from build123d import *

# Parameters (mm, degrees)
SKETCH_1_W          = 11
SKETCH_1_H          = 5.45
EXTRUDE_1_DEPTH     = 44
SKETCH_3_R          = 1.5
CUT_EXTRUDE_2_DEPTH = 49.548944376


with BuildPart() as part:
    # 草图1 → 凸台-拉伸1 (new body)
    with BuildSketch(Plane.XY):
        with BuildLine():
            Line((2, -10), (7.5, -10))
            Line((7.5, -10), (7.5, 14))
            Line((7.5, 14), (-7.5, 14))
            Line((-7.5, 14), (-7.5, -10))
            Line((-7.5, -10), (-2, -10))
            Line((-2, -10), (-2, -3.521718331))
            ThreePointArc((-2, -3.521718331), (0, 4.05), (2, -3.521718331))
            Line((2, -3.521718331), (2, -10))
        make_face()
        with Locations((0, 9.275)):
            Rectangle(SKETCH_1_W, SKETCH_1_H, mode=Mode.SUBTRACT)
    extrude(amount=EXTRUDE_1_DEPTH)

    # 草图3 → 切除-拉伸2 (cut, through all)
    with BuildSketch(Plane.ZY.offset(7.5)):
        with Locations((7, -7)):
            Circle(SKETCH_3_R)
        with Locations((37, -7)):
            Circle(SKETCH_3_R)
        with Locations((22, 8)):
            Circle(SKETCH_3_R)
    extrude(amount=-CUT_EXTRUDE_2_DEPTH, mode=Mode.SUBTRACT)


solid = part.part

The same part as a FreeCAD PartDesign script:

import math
import FreeCAD as App
import Part
import Sketcher
from FreeCAD import Vector

doc = App.newDocument("Part")
params = doc.addObject("Spreadsheet::Sheet", "Params")
for row, (alias, value) in enumerate([
    ("sketch1_width", "15 mm"),
    ("sketch1_width2", "11 mm"),
    ("sketch1_height", "24 mm"),
    ("sketch1_radius", "4.05 mm"),
    ("sketch1_width3", "5.5 mm"),
    ("pad1_length", "44 mm"),
    ("sketch2_diameter", "3 mm"),
], start=1):
    params.set(f"A{row}", alias)
    params.set(f"B{row}", "=" + value)
    params.setAlias(f"B{row}", alias)

body = doc.addObject("PartDesign::Body", "Body")

# Sketch on XY plane
sketch1 = body.newObject("Sketcher::SketchObject", "Sketch")
sketch1.AttachmentSupport = (doc.getObject("XY_Plane"), [""])
sketch1.MapMode = "FlatFace"
sketch1.addGeometry([
    Part.LineSegment(Vector(2, -10, 0), Vector(7.5, -10, 0)),  # 0
    Part.LineSegment(Vector(7.5, -10, 0), Vector(7.5, 14, 0)),  # 1
    Part.LineSegment(Vector(7.5, 14, 0), Vector(-7.5, 14, 0)),  # 2
    Part.LineSegment(Vector(-7.5, 14, 0), Vector(-7.5, -10, 0)),  # 3
    Part.LineSegment(Vector(-7.5, -10, 0), Vector(-2, -10, 0)),  # 4
    Part.LineSegment(Vector(-2, -10, 0), Vector(-2, -3.5, 0)),  # 5
    Part.ArcOfCircle(Part.Circle(Vector(0, 0, 0), Vector(0, 0, 1), 4), math.radians(-60), math.radians(240)),  # 6
    Part.LineSegment(Vector(2, -3.5, 0), Vector(2, -10, 0)),  # 7
    Part.LineSegment(Vector(5.5, 6.5, 0), Vector(-5.5, 6.5, 0)),  # 8
    Part.LineSegment(Vector(-5.5, 6.5, 0), Vector(-5.5, 12, 0)),  # 9
    Part.LineSegment(Vector(-5.5, 12, 0), Vector(5.5, 12, 0)),  # 10
    Part.LineSegment(Vector(5.5, 12, 0), Vector(5.5, 6.5, 0)),  # 11
], False)
sketch1.addConstraint([
    Sketcher.Constraint("Coincident", 0, 2, 1, 1),
    Sketcher.Constraint("Coincident", 1, 2, 2, 1),
    Sketcher.Constraint("Coincident", 2, 2, 3, 1),
    Sketcher.Constraint("Coincident", 3, 2, 4, 1),
    Sketcher.Constraint("Coincident", 4, 2, 5, 1),
    Sketcher.Constraint("Coincident", 5, 2, 6, 2),
    Sketcher.Constraint("Coincident", 6, 1, 7, 1),
    Sketcher.Constraint("Coincident", 7, 2, 0, 1),
    Sketcher.Constraint("Coincident", 8, 2, 9, 1),
    Sketcher.Constraint("Coincident", 9, 2, 10, 1),
    Sketcher.Constraint("Coincident", 10, 2, 11, 1),
    Sketcher.Constraint("Coincident", 11, 2, 8, 1),
    Sketcher.Constraint("Horizontal", 0),
    Sketcher.Constraint("Vertical", 1),
    Sketcher.Constraint("Horizontal", 2),
    Sketcher.Constraint("Vertical", 3),
    Sketcher.Constraint("Horizontal", 4),
    Sketcher.Constraint("Vertical", 5),
    Sketcher.Constraint("Vertical", 7),
    Sketcher.Constraint("Horizontal", 8),
    Sketcher.Constraint("Vertical", 9),
    Sketcher.Constraint("Horizontal", 10),
    Sketcher.Constraint("Vertical", 11),
    Sketcher.Constraint("Coincident", 6, 3, -1, 1),
    Sketcher.Constraint("Symmetric", 0, 2, 3, 2, -2),
    Sketcher.Constraint("Horizontal", 5, 2, 6, 1),
    Sketcher.Constraint("DistanceX", 2, 2, 2, 1, 15.0),
    Sketcher.Constraint("DistanceX", 8, 2, 8, 1, 11.0),
    Sketcher.Constraint("DistanceY", 1, 1, 1, 2, 24.0),
    Sketcher.Constraint("Radius", 6, 4.05),
    Sketcher.Constraint("DistanceX", 0, 1, 0, 2, 5.5),
    Sketcher.Constraint("DistanceY", 0, 2, -1, 1, 10.0),
    Sketcher.Constraint("DistanceY", -1, 1, 9, 2, 12.0),
    Sketcher.Constraint("DistanceX", 2, 2, 8, 2, 2.0),
    Sketcher.Constraint("DistanceY", 9, 1, 9, 2, 5.45),
])
sketch1.setExpression("Constraints[26]", "Params.sketch1_width")
sketch1.setExpression("Constraints[27]", "Params.sketch1_width2")
sketch1.setExpression("Constraints[28]", "Params.sketch1_height")
sketch1.setExpression("Constraints[29]", "Params.sketch1_radius")
sketch1.setExpression("Constraints[30]", "Params.sketch1_width3")
pad1 = body.newObject("PartDesign::Pad", "Pad")
pad1.Profile = sketch1
pad1.setExpression("Length", "Params.pad1_length")

# Sketch on YZ plane
sketch2 = body.newObject("Sketcher::SketchObject", "Sketch001")
sketch2.AttachmentSupport = (doc.getObject("YZ_Plane"), [""])
sketch2.MapMode = "FlatFace"
sketch2.AttachmentOffset = App.Placement(Vector(0, 0, -7.5), App.Rotation())
sketch2.addGeometry([
    Part.Circle(Vector(-7, 7, 0), Vector(0, 0, 1), 1.5),
    Part.Circle(Vector(-7, 37, 0), Vector(0, 0, 1), 1.5),
    Part.Circle(Vector(8, 22, 0), Vector(0, 0, 1), 1.5),
], False)
sketch2.addConstraint([
    Sketcher.Constraint("Equal", 0, 1),
    Sketcher.Constraint("Equal", 1, 2),
    Sketcher.Constraint("Vertical", 0, 3, 1, 3),
    Sketcher.Constraint("Diameter", 0, 3.0),
    Sketcher.Constraint("DistanceX", 0, 3, -1, 1, 7.0),
    Sketcher.Constraint("DistanceY", -1, 1, 0, 3, 7.0),
    Sketcher.Constraint("DistanceY", -1, 1, 1, 3, 37.0),
    Sketcher.Constraint("DistanceX", -1, 1, 2, 3, 8.0),
    Sketcher.Constraint("DistanceY", -1, 1, 2, 3, 22.0),
])
sketch2.setExpression("Constraints[3]", "Params.sketch2_diameter")
pocket1 = body.newObject("PartDesign::Pocket", "Pocket")
pocket1.Profile = sketch2
pocket1.Type = "ThroughAll"
pocket1.Reversed = True

doc.recompute()
